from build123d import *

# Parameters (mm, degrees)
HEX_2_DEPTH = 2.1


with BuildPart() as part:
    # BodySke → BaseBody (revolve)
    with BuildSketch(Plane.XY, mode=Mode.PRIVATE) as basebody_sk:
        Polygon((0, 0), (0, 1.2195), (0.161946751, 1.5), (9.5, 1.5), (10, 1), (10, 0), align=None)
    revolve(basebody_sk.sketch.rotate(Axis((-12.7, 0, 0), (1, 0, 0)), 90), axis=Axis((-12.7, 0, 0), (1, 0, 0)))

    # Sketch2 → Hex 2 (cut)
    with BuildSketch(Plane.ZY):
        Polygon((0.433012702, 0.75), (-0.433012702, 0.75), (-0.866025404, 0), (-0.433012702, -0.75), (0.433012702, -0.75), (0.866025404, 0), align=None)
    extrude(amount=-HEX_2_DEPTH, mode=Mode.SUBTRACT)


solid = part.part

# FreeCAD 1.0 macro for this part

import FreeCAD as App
import Part
import Sketcher
from FreeCAD import Vector
Q = App.Units.Quantity

doc = App.newDocument("Part")
body = doc.addObject("PartDesign::Body", "Body")

sketch1 = doc.addObject("Sketcher::SketchObject", "Sketch")
body.addObject(sketch1)
sketch1.AttachmentSupport = (doc.XY_Plane, [""])
sketch1.MapMode = "FlatFace"
sketch1.addGeometry(Part.LineSegment(Vector(0, 1.2195, 0), Vector(0, 0, 0)), False)
sketch1.addGeometry(Part.LineSegment(Vector(0, 0, 0), Vector(10, 0, 0)), False)
sketch1.addGeometry(Part.LineSegment(Vector(10, 0, 0), Vector(10, 1, 0)), False)
sketch1.addGeometry(Part.LineSegment(Vector(10, 1, 0), Vector(9.5, 1.5, 0)), False)
sketch1.addGeometry(Part.LineSegment(Vector(9.5, 1.5, 0), Vector(0.161947, 1.5, 0)), False)
sketch1.addGeometry(Part.LineSegment(Vector(0.161947, 1.5, 0), Vector(0, 1.2195, 0)), False)
sketch1.addConstraint(Sketcher.Constraint("Coincident", 0, 2, 1, 1))
sketch1.addConstraint(Sketcher.Constraint("Coincident", 1, 2, 2, 1))
sketch1.addConstraint(Sketcher.Constraint("Coincident", 2, 2, 3, 1))
sketch1.addConstraint(Sketcher.Constraint("Coincident", 3, 2, 4, 1))
sketch1.addConstraint(Sketcher.Constraint("Coincident", 4, 2, 5, 1))
sketch1.addConstraint(Sketcher.Constraint("Coincident", 5, 2, 0, 1))
sketch1.addConstraint(Sketcher.Constraint("Vertical", 0))
sketch1.addConstraint(Sketcher.Constraint("Horizontal", 1))
sketch1.addConstraint(Sketcher.Constraint("Vertical", 2))
sketch1.addConstraint(Sketcher.Constraint("Horizontal", 4))
sketch1.addConstraint(Sketcher.Constraint("Coincident", 0, 2, -1, 1))
sketch1.addConstraint(Sketcher.Constraint("DistanceX", 1, 1, 1, 2, 10.0))
sketch1.addConstraint(Sketcher.Constraint("DistanceY", 2, 1, 2, 2, 1.0))
sketch1.addConstraint(Sketcher.Constraint("Angle", 3, Q("135 deg")))
sketch1.addConstraint(Sketcher.Constraint("Angle", 5, Q("-120 deg")))
sketch1.addConstraint(Sketcher.Constraint("DistanceX", -1, 1, 3, 2, 9.5))
sketch1.addConstraint(Sketcher.Constraint("DistanceY", 0, 2, 0, 1, 1.2195))
revolution = doc.addObject("PartDesign::Revolution", "Revolution")
body.addObject(revolution)
revolution.Profile = sketch1
revolution.ReferenceAxis = (sketch1, ["H_Axis"])
revolution.Angle = 360

sketch2 = doc.addObject("Sketcher::SketchObject", "Sketch001")
body.addObject(sketch2)
sketch2.AttachmentSupport = (doc.YZ_Plane, [""])
sketch2.MapMode = "FlatFace"
sketch2.addGeometry(Part.LineSegment(Vector(0.75, 0.433013, 0), Vector(0.75, -0.433013, 0)), False)
sketch2.addGeometry(Part.LineSegment(Vector(0.75, -0.433013, 0), Vector(0, -0.866025, 0)), False)
sketch2.addGeometry(Part.LineSegment(Vector(0, -0.866025, 0), Vector(-0.75, -0.433013, 0)), False)
sketch2.addGeometry(Part.LineSegment(Vector(-0.75, -0.433013, 0), Vector(-0.75, 0.433013, 0)), False)
sketch2.addGeometry(Part.LineSegment(Vector(-0.75, 0.433013, 0), Vector(0, 0.866025, 0)), False)
sketch2.addGeometry(Part.LineSegment(Vector(0, 0.866025, 0), Vector(0.75, 0.433013, 0)), False)
sketch2.addConstraint(Sketcher.Constraint("Coincident", 0, 2, 1, 1))
sketch2.addConstraint(Sketcher.Constraint("Coincident", 1, 2, 2, 1))
sketch2.addConstraint(Sketcher.Constraint("Coincident", 2, 2, 3, 1))
sketch2.addConstraint(Sketcher.Constraint("Coincident", 3, 2, 4, 1))
sketch2.addConstraint(Sketcher.Constraint("Coincident", 4, 2, 5, 1))
sketch2.addConstraint(Sketcher.Constraint("Coincident", 5, 2, 0, 1))
sketch2.addConstraint(Sketcher.Constraint("Vertical", 0))
sketch2.addConstraint(Sketcher.Constraint("Vertical", 3))
sketch2.addConstraint(Sketcher.Constraint("Symmetric", 0, 2, 3, 2, -1, 1))
sketch2.addConstraint(Sketcher.Constraint("Symmetric", 1, 2, 4, 2, -1, 1))
sketch2.addConstraint(Sketcher.Constraint("PointOnObject", 1, 2, -2))
sketch2.addConstraint(Sketcher.Constraint("Parallel", 2, 5))
sketch2.addConstraint(Sketcher.Constraint("Horizontal", 0, 2, 2, 2))
sketch2.addConstraint(Sketcher.Constraint("Angle", 1, Q("-150 deg")))
sketch2.addConstraint(Sketcher.Constraint("DistanceX", 2, 2, 0, 2, 1.5))
sketch2.addConstraint(Sketcher.Constraint("DistanceY", 0, 2, 0, 1, 0.866025))
pocket1 = doc.addObject("PartDesign::Pocket", "Pocket")
body.addObject(pocket1)
pocket1.Profile = sketch2
pocket1.Length = 2.1
pocket1.Reversed = True

doc.recompute()
